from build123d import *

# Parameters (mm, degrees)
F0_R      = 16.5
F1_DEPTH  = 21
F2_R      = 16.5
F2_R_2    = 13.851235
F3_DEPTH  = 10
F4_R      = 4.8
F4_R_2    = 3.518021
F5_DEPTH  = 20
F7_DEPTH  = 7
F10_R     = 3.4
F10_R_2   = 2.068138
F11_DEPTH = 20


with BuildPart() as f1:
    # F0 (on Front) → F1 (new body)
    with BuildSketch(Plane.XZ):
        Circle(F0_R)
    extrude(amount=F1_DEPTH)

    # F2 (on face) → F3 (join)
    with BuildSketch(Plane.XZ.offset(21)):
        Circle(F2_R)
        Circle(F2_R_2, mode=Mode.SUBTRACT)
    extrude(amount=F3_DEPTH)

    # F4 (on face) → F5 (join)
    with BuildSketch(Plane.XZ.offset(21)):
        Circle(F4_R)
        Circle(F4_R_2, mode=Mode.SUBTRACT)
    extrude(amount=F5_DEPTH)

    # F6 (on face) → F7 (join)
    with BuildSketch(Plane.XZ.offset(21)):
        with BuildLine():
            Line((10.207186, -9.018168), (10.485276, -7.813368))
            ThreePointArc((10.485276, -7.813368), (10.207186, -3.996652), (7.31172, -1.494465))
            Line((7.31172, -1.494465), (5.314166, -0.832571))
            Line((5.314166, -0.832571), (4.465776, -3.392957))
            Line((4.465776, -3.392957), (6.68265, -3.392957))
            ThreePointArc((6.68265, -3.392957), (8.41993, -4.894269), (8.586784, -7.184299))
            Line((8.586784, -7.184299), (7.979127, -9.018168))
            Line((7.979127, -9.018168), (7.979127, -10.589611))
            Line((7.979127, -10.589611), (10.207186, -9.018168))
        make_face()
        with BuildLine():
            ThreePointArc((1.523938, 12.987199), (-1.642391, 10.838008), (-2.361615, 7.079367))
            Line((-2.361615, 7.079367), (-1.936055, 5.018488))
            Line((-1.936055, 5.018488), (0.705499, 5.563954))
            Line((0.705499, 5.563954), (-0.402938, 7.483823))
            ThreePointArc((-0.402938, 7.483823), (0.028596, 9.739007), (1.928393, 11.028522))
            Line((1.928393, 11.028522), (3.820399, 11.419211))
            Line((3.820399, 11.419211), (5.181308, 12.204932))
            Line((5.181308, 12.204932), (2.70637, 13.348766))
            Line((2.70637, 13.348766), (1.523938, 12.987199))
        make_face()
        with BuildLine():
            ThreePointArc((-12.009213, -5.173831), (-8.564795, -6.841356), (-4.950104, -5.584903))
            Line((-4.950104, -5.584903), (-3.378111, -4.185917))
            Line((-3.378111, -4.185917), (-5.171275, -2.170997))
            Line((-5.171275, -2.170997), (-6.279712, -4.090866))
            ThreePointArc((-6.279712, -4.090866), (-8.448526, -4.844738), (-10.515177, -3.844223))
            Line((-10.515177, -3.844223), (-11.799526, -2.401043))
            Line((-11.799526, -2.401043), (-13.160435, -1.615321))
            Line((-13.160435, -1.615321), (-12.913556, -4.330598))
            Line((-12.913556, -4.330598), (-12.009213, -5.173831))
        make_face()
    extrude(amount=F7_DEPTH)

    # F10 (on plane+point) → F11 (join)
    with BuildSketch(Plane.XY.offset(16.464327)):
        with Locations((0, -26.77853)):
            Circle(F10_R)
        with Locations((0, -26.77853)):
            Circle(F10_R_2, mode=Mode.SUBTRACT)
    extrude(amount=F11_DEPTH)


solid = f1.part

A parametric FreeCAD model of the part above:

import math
import FreeCAD as App
import Part
import Sketcher

V = App.Vector

doc = App.newDocument("Part")
body = doc.addObject("PartDesign::Body", "Body")

sketch1 = body.newObject("Sketcher::SketchObject", "Sketch")
sketch1.AttachmentSupport = (doc.getObject("XZ_Plane"), [""])
sketch1.MapMode = "FlatFace"
sketch1.addGeometry(Part.Circle(V(0, 0, 0), V(0, 0, 1), 16), False)
sketch1.addConstraint(Sketcher.Constraint("Coincident", 0, 3, -1, 1))
sketch1.addConstraint(Sketcher.Constraint("Diameter", 0, 33.0))
pad1 = body.newObject("PartDesign::Pad", "Pad")
pad1.Profile = sketch1
pad1.Length = 21

sketch2 = body.newObject("Sketcher::SketchObject", "Sketch001")
sketch2.AttachmentSupport = (doc.getObject("XZ_Plane"), [""])
sketch2.MapMode = "FlatFace"
sketch2.AttachmentOffset = App.Placement(V(0, 0, 21), App.Rotation())
sketch2.addGeometry(Part.Circle(V(0, 0, 0), V(0, 0, 1), 16), False)
sketch2.addGeometry(Part.Circle(V(0, 0, 0), V(0, 0, 1), 14), False)
sketch2.addConstraint(Sketcher.Constraint("Coincident", 0, 3, -1, 1))
sketch2.addConstraint(Sketcher.Constraint("Coincident", 1, 3, -1, 1))
sketch2.addConstraint(Sketcher.Constraint("Diameter", 0, 33.0))
sketch2.addConstraint(Sketcher.Constraint("Diameter", 1, 27.70247))
pad2 = body.newObject("PartDesign::Pad", "Pad001")
pad2.Profile = sketch2
pad2.Length = 10

sketch3 = body.newObject("Sketcher::SketchObject", "Sketch002")
sketch3.AttachmentSupport = (doc.getObject("XZ_Plane"), [""])
sketch3.MapMode = "FlatFace"
sketch3.AttachmentOffset = App.Placement(V(0, 0, 21), App.Rotation())
sketch3.addGeometry(Part.Circle(V(0, 0, 0), V(0, 0, 1), 4.8), False)
sketch3.addGeometry(Part.Circle(V(0, 0, 0), V(0, 0, 1), 3.5), False)
sketch3.addConstraint(Sketcher.Constraint("Coincident", 0, 3, -1, 1))
sketch3.addConstraint(Sketcher.Constraint("Coincident", 1, 3, -1, 1))
sketch3.addConstraint(Sketcher.Constraint("Diameter", 0, 9.6))
sketch3.addConstraint(Sketcher.Constraint("Diameter", 1, 7.036042))
pad3 = body.newObject("PartDesign::Pad", "Pad002")
pad3.Profile = sketch3
pad3.Length = 20

sketch4 = body.newObject("Sketcher::SketchObject", "Sketch003")
sketch4.AttachmentSupport = (doc.getObject("XZ_Plane"), [""])
sketch4.MapMode = "FlatFace"
sketch4.AttachmentOffset = App.Placement(V(0, 0, 21), App.Rotation())
sketch4.addGeometry(Part.LineSegment(V(10.207186, -9.018168, 0), V(10.485276, -7.813368, 0)), False)
sketch4.addGeometry(Part.ArcOfCircle(Part.Circle(V(5.739047, -6.240694, 0), V(0, 0, 1), 4.999999), math.radians(-18.33273), math.radians(71.667275)), False)
sketch4.addGeometry(Part.LineSegment(V(7.31172, -1.494465, 0), V(5.314166, -0.832571, 0)), False)
sketch4.addGeometry(Part.LineSegment(V(5.314166, -0.832571, 0), V(4.465776, -3.392957, 0)), False)
sketch4.addGeometry(Part.LineSegment(V(4.465776, -3.392957, 0), V(6.68265, -3.392957, 0)), False)
sketch4.addGeometry(Part.ArcOfCircle(Part.Circle(V(5.739047, -6.240695, 0), V(0, 0, 1), 2.999999), math.radians(-18.332738), math.radians(71.66729)), False)
sketch4.addGeometry(Part.LineSegment(V(8.586784, -7.184299, 0), V(7.979127, -9.018168, 0)), False)
sketch4.addGeometry(Part.LineSegment(V(7.979127, -9.018168, 0), V(7.979127, -10.589611, 0)), False)
sketch4.addGeometry(Part.LineSegment(V(7.979127, -10.589611, 0), V(10.207186, -9.018168, 0)), False)
sketch4.addGeometry(Part.ArcOfCircle(Part.Circle(V(2.535075, 8.090508, 0), V(0, 0, 1), 4.999998), math.radians(101.667251), math.radians(191.66729)), False)
sketch4.addGeometry(Part.LineSegment(V(-2.361615, 7.079367, 0), V(-1.936055, 5.018488, 0)), False)
sketch4.addGeometry(Part.LineSegment(V(-1.936055, 5.018488, 0), V(0.705499, 5.563954, 0)), False)
sketch4.addGeometry(Part.LineSegment(V(0.705499, 5.563954, 0), V(-0.402938, 7.483823, 0)), False)
sketch4.addGeometry(Part.ArcOfCircle(Part.Circle(V(2.535076, 8.090508, 0), V(0, 0, 1), 2.999999), math.radians(101.667266), math.radians(191.667291)), False)
sketch4.addGeometry(Part.LineSegment(V(1.928393, 11.028522, 0), V(3.820399, 11.419211, 0)), False)
sketch4.addGeometry(Part.LineSegment(V(3.820399, 11.419211, 0), V(5.181308, 12.204932, 0)), False)
sketch4.addGeometry(Part.LineSegment(V(5.181308, 12.204932, 0), V(2.70637, 13.348766, 0)), False)
sketch4.addGeometry(Part.LineSegment(V(2.70637, 13.348766, 0), V(1.523938, 12.987199, 0)), False)
sketch4.addGeometry(Part.ArcOfCircle(Part.Circle(V(-8.274122, -1.849811, 0), V(0, 0, 1), 5.000001), math.radians(-138.332724), math.radians(-48.332741)), False)
sketch4.addGeometry(Part.LineSegment(V(-4.950104, -5.584903, 0), V(-3.378111, -4.185917, 0)), False)
sketch4.addGeometry(Part.LineSegment(V(-3.378111, -4.185917, 0), V(-5.171275, -2.170997, 0)), False)
sketch4.addGeometry(Part.LineSegment(V(-5.171275, -2.170997, 0), V(-6.279712, -4.090866, 0)), False)
sketch4.addGeometry(Part.ArcOfCircle(Part.Circle(V(-8.274123, -1.849812, 0), V(0, 0, 1), 3), math.radians(-138.332729), math.radians(-48.332731)), False)
sketch4.addGeometry(Part.LineSegment(V(-10.515177, -3.844223, 0), V(-11.799526, -2.401043, 0)), False)
sketch4.addGeometry(Part.LineSegment(V(-11.799526, -2.401043, 0), V(-13.160435, -1.615321, 0)), False)
sketch4.addGeometry(Part.LineSegment(V(-13.160435, -1.615321, 0), V(-12.913556, -4.330598, 0)), False)
sketch4.addGeometry(Part.LineSegment(V(-12.913556, -4.330598, 0), V(-12.009213, -5.173831, 0)), False)
sketch4.addConstraint(Sketcher.Constraint("Coincident", 0, 2, 1, 1))
sketch4.addConstraint(Sketcher.Constraint("Coincident", 1, 2, 2, 1))
sketch4.addConstraint(Sketcher.Constraint("Coincident", 2, 2, 3, 1))
sketch4.addConstraint(Sketcher.Constraint("Coincident", 3, 2, 4, 1))
sketch4.addConstraint(Sketcher.Constraint("Coincident", 4, 2, 5, 2))
sketch4.addConstraint(Sketcher.Constraint("Coincident", 5, 1, 6, 1))
sketch4.addConstraint(Sketcher.Constraint("Coincident", 6, 2, 7, 1))
sketch4.addConstraint(Sketcher.Constraint("Coincident", 7, 2, 8, 1))
sketch4.addConstraint(Sketcher.Constraint("Coincident", 8, 2, 0, 1))
sketch4.addConstraint(Sketcher.Constraint("Coincident", 9, 2, 10, 1))
sketch4.addConstraint(Sketcher.Constraint("Coincident", 10, 2, 11, 1))
sketch4.addConstraint(Sketcher.Constraint("Coincident", 11, 2, 12, 1))
sketch4.addConstraint(Sketcher.Constraint("Coincident", 12, 2, 13, 2))
sketch4.addConstraint(Sketcher.Constraint("Coincident", 13, 1, 14, 1))
sketch4.addConstraint(Sketcher.Constraint("Coincident", 14, 2, 15, 1))
sketch4.addConstraint(Sketcher.Constraint("Coincident", 15, 2, 16, 1))
sketch4.addConstraint(Sketcher.Constraint("Coincident", 16, 2, 17, 1))
sketch4.addConstraint(Sketcher.Constraint("Coincident", 17, 2, 9, 1))
sketch4.addConstraint(Sketcher.Constraint("Coincident", 18, 2, 19, 1))
sketch4.addConstraint(Sketcher.Constraint("Coincident", 19, 2, 20, 1))
sketch4.addConstraint(Sketcher.Constraint("Coincident", 20, 2, 21, 1))
sketch4.addConstraint(Sketcher.Constraint("Coincident", 21, 2, 22, 2))
sketch4.addConstraint(Sketcher.Constraint("Coincident", 22, 1, 23, 1))
sketch4.addConstraint(Sketcher.Constraint("Coincident", 23, 2, 24, 1))
sketch4.addConstraint(Sketcher.Constraint("Coincident", 24, 2, 25, 1))
sketch4.addConstraint(Sketcher.Constraint("Coincident", 25, 2, 26, 1))
sketch4.addConstraint(Sketcher.Constraint("Coincident", 26, 2, 18, 1))
sketch4.addConstraint(Sketcher.Constraint("Horizontal", 4))
sketch4.addConstraint(Sketcher.Constraint("Vertical", 7))
sketch4.addConstraint(Sketcher.Constraint("Coincident", 5, 3, 1, 3))
sketch4.addConstraint(Sketcher.Constraint("Coincident", 13, 3, 9, 3))
sketch4.addConstraint(Sketcher.Constraint("Coincident", 22, 3, 18, 3))
sketch4.addConstraint(Sketcher.Constraint("Radius", 1, 4.999999))
sketch4.addConstraint(Sketcher.Constraint("Radius", 5, 2.999999))
sketch4.addConstraint(Sketcher.Constraint("Radius", 9, 4.999998))
sketch4.addConstraint(Sketcher.Constraint("Radius", 13, 2.999999))
sketch4.addConstraint(Sketcher.Constraint("Radius", 18, 5.000001))
sketch4.addConstraint(Sketcher.Constraint("Radius", 22, 3.0))
sketch4.addConstraint(Sketcher.Constraint("DistanceY", 5, 1, -1, 1, 7.184299))
sketch4.addConstraint(Sketcher.Constraint("DistanceX", -1, 1, 11, 2, 0.705499))
sketch4.addConstraint(Sketcher.Constraint("DistanceX", -1, 1, 14, 2, 3.820399))
sketch4.addConstraint(Sketcher.Constraint("DistanceY", -1, 1, 17, 2, 12.987199))
sketch4.addConstraint(Sketcher.Constraint("DistanceY", 25, 2, -1, 1, 4.330598))
sketch4.addConstraint(Sketcher.Constraint("DistanceY", 1, 3, 13, 3, 14.331202))
sketch4.addConstraint(Sketcher.Constraint("DistanceX", 18, 3, 13, 3, 10.809199))
sketch4.addConstraint(Sketcher.Constraint("DistanceX", 13, 3, 0, 2, 7.9502))
sketch4.addConstraint(Sketcher.Constraint("DistanceX", 3, 2, 0, 2, 6.0195))
sketch4.addConstraint(Sketcher.Constraint("DistanceY", 6, 2, 0, 2, 1.2048))
sketch4.addConstraint(Sketcher.Constraint("DistanceY", 8, 2, 0, 2, 1.2048))
sketch4.addConstraint(Sketcher.Constraint("DistanceX", 5, 1, 8, 2, 1.620402))
sketch4.addConstraint(Sketcher.Constraint("DistanceY", 18, 3, 10, 2, 6.868299))
sketch4.addConstraint(Sketcher.Constraint("DistanceY", 12, 2, 13, 1, 3.544699))
sketch4.addConstraint(Sketcher.Constraint("DistanceX", 21, 2, 19, 2, 2.901601))
sketch4.addConstraint(Sketcher.Constraint("DistanceX", 22, 1, 20, 2, 5.343902))
sketch4.addConstraint(Sketcher.Constraint("DistanceY", 22, 1, 24, 2, 2.228902))
sketch4.addConstraint(Sketcher.Constraint("Distance", 2, 2.104359))
sketch4.addConstraint(Sketcher.Constraint("Distance", 6, 1.931922))
sketch4.addConstraint(Sketcher.Constraint("Distance", 10, 2.104358))
sketch4.addConstraint(Sketcher.Constraint("Distance", 19, 2.104358))
sketch4.addConstraint(Sketcher.Constraint("Distance", 23, 1.931922))
sketch4.addConstraint(Sketcher.Constraint("Distance", 26, 1.236478))
sketch4.addConstraint(Sketcher.Constraint("DistanceX", 4, 1, 4, 2, 2.216874))
sketch4.addConstraint(Sketcher.Constraint("DistanceY", 7, 2, 7, 1, 1.571443))
sketch4.addConstraint(Sketcher.Constraint("DistanceY", 18, 3, -1, 1, 1.849811))
sketch4.addConstraint(Sketcher.Constraint("DistanceX", -1, 1, 1, 2, 7.31172))
sketch4.addConstraint(Sketcher.Constraint("DistanceY", 2, 2, -1, 1, 0.832571))
sketch4.addConstraint(Sketcher.Constraint("DistanceX", -1, 1, 4, 2, 6.68265))
sketch4.addConstraint(Sketcher.Constraint("DistanceY", 7, 2, -1, 1, 10.589611))
sketch4.addConstraint(Sketcher.Constraint("DistanceY", -1, 1, 14, 2, 11.419211))
sketch4.addConstraint(Sketcher.Constraint("DistanceX", -1, 1, 16, 2, 2.70637))
sketch4.addConstraint(Sketcher.Constraint("DistanceX", 19, 2, -1, 1, 3.378111))
sketch4.addConstraint(Sketcher.Constraint("DistanceY", 24, 2, -1, 1, 1.615321))
sketch4.addConstraint(Sketcher.Constraint("DistanceY", 26, 2, -1, 1, 5.173831))
sketch4.addConstraint(Sketcher.Constraint("DistanceX", 9, 3, 1, 3, 3.203971))
sketch4.addConstraint(Sketcher.Constraint("DistanceX", 9, 2, 9, 3, 4.89669))
sketch4.addConstraint(Sketcher.Constraint("DistanceY", 11, 2, 12, 2, 1.919869))
sketch4.addConstraint(Sketcher.Constraint("DistanceX", 12, 2, 13, 1, 2.331331))
sketch4.addConstraint(Sketcher.Constraint("DistanceX", 14, 2, 15, 2, 1.360909))
sketch4.addConstraint(Sketcher.Constraint("DistanceY", 14, 2, 15, 2, 0.785721))
sketch4.addConstraint(Sketcher.Constraint("DistanceY", 9, 3, 16, 2, 5.258258))
sketch4.addConstraint(Sketcher.Constraint("DistanceX", 18, 3, 18, 2, 3.324018))
sketch4.addConstraint(Sketcher.Constraint("DistanceY", 19, 2, 20, 2, 2.01492))
sketch4.addConstraint(Sketcher.Constraint("DistanceX", 23, 2, 22, 1, 1.284349))
sketch4.addConstraint(Sketcher.Constraint("DistanceX", 24, 2, 23, 2, 1.360909))
pad4 = body.newObject("PartDesign::Pad", "Pad003")
pad4.Profile = sketch4
pad4.Length = 7

sketch5 = body.newObject("Sketcher::SketchObject", "Sketch004")
sketch5.AttachmentSupport = (doc.getObject("XY_Plane"), [""])
sketch5.MapMode = "FlatFace"
sketch5.AttachmentOffset = App.Placement(V(0, 0, 16.464327), App.Rotation())
sketch5.addGeometry(Part.Circle(V(0, -26.8, 0), V(0, 0, 1), 3.4), False)
sketch5.addGeometry(Part.Circle(V(0, -26.8, 0), V(0, 0, 1), 2.1), False)
sketch5.addConstraint(Sketcher.Constraint("Coincident", 1, 3, 0, 3))
sketch5.addConstraint(Sketcher.Constraint("PointOnObject", 0, 3, -2))
sketch5.addConstraint(Sketcher.Constraint("Diameter", 0, 6.8))
sketch5.addConstraint(Sketcher.Constraint("Diameter", 1, 4.136276))
sketch5.addConstraint(Sketcher.Constraint("DistanceY", 0, 3, -1, 1, 26.77853))
pad5 = body.newObject("PartDesign::Pad", "Pad004")
pad5.Profile = sketch5
pad5.Length = 20

doc.recompute()
